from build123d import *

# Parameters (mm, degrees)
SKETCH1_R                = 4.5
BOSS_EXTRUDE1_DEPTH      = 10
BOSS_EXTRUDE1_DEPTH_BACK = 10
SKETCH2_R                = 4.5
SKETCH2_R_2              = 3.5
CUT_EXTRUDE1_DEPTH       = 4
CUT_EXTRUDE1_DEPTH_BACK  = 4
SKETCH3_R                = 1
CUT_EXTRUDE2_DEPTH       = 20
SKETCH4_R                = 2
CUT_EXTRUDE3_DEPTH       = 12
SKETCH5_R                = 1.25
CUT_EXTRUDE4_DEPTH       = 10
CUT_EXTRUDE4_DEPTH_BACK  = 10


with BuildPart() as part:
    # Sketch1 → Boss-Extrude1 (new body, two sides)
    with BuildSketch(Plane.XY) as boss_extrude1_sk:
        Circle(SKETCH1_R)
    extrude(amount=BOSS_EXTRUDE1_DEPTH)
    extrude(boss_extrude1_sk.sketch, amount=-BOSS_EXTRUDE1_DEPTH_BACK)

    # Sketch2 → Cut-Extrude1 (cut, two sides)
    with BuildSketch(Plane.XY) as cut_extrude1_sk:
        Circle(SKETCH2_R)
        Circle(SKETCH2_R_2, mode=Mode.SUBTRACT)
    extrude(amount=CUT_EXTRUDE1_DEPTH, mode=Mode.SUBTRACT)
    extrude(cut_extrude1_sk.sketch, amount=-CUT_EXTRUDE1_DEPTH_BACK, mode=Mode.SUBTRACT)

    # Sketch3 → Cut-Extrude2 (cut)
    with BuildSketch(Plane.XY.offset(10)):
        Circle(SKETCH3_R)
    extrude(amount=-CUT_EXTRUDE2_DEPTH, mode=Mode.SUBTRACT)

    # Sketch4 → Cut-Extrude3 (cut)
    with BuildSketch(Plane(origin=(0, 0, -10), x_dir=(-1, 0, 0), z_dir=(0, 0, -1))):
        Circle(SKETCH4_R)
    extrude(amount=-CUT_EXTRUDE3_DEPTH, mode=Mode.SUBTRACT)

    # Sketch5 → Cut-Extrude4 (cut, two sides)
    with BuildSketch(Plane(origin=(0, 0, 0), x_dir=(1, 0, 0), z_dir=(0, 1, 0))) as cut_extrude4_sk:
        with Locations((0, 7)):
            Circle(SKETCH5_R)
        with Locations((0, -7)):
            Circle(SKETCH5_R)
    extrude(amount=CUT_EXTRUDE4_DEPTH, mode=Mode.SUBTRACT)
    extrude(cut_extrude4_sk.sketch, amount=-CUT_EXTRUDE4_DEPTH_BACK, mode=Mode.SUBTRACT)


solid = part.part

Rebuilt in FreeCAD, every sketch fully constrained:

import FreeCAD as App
import Part
import Sketcher

V = App.Vector

doc = App.newDocument("Part")
body = doc.addObject("PartDesign::Body", "Body")

# Sketch on XY plane
sketch1 = body.newObject("Sketcher::SketchObject", "Sketch")
sketch1.AttachmentSupport = (doc.getObject("XY_Plane"), [""])
sketch1.MapMode = "FlatFace"
sketch1.addGeometry(Part.Circle(V(0, 0, 0), V(0, 0, 1), 4.5), False)
sketch1.addConstraint([
    Sketcher.Constraint("Coincident", 0, 3, -1, 1),
    Sketcher.Constraint("Diameter", 0, 9.0),
])
pad1 = body.newObject("PartDesign::Pad", "Pad")
pad1.Profile = sketch1
pad1.Type = "TwoLengths"
pad1.Length = 10
pad1.Length2 = 10

# Sketch on XY plane
sketch2 = body.newObject("Sketcher::SketchObject", "Sketch001")
sketch2.AttachmentSupport = (doc.getObject("XY_Plane"), [""])
sketch2.MapMode = "FlatFace"
sketch2.addGeometry([
    Part.Circle(V(0, 0, 0), V(0, 0, 1), 4.5),
    Part.Circle(V(0, 0, 0), V(0, 0, 1), 3.5),
], False)
sketch2.addConstraint([
    Sketcher.Constraint("Coincident", 0, 3, -1, 1),
    Sketcher.Constraint("Coincident", 1, 3, -1, 1),
    Sketcher.Constraint("Diameter", 0, 9.0),
    Sketcher.Constraint("Diameter", 1, 7.0),
])
pocket1 = body.newObject("PartDesign::Pocket", "Pocket")
pocket1.Profile = sketch2
pocket1.Type = "TwoLengths"
pocket1.Length = 4
pocket1.Length2 = 4
pocket1.Reversed = True

# Sketch on XY plane
sketch3 = body.newObject("Sketcher::SketchObject", "Sketch002")
sketch3.AttachmentSupport = (doc.getObject("XY_Plane"), [""])
sketch3.MapMode = "FlatFace"
sketch3.AttachmentOffset = App.Placement(V(0, 0, 10), App.Rotation())
sketch3.addGeometry(Part.Circle(V(0, 0, 0), V(0, 0, 1), 1), False)
sketch3.addConstraint([
    Sketcher.Constraint("Coincident", 0, 3, -1, 1),
    Sketcher.Constraint("Diameter", 0, 2.0),
])
pocket2 = body.newObject("PartDesign::Pocket", "Pocket001")
pocket2.Profile = sketch3
pocket2.Length = 20

# Sketch on XY plane
sketch4 = body.newObject("Sketcher::SketchObject", "Sketch003")
sketch4.AttachmentSupport = (doc.getObject("XY_Plane"), [""])
sketch4.MapMode = "FlatFace"
sketch4.AttachmentOffset = App.Placement(V(0, 0, -10), App.Rotation())
sketch4.addGeometry(Part.Circle(V(0, 0, 0), V(0, 0, 1), 2), False)
sketch4.addConstraint([
    Sketcher.Constraint("Coincident", 0, 3, -1, 1),
    Sketcher.Constraint("Diameter", 0, 4.0),
])
pocket3 = body.newObject("PartDesign::Pocket", "Pocket002")
pocket3.Profile = sketch4
pocket3.Length = 12
pocket3.Reversed = True

# Sketch on XZ plane
sketch5 = body.newObject("Sketcher::SketchObject", "Sketch004")
sketch5.AttachmentSupport = (doc.getObject("XZ_Plane"), [""])
sketch5.MapMode = "FlatFace"
sketch5.addGeometry([
    Part.Circle(V(0, -7, 0), V(0, 0, 1), 1.25),
    Part.Circle(V(0, 7, 0), V(0, 0, 1), 1.25),
], False)
sketch5.addConstraint([
    Sketcher.Constraint("Equal", 0, 1),
    Sketcher.Constraint("Symmetric", 0, 3, 1, 3, -1, 1),
    Sketcher.Constraint("PointOnObject", 0, 3, -2),
    Sketcher.Constraint("Diameter", 0, 2.5),
    Sketcher.Constraint("DistanceY", 0, 3, -1, 1, 7.0),
])
pocket4 = body.newObject("PartDesign::Pocket", "Pocket003")
pocket4.Profile = sketch5
pocket4.Type = "ThroughAll"
pocket4.Midplane = True

doc.recompute()
